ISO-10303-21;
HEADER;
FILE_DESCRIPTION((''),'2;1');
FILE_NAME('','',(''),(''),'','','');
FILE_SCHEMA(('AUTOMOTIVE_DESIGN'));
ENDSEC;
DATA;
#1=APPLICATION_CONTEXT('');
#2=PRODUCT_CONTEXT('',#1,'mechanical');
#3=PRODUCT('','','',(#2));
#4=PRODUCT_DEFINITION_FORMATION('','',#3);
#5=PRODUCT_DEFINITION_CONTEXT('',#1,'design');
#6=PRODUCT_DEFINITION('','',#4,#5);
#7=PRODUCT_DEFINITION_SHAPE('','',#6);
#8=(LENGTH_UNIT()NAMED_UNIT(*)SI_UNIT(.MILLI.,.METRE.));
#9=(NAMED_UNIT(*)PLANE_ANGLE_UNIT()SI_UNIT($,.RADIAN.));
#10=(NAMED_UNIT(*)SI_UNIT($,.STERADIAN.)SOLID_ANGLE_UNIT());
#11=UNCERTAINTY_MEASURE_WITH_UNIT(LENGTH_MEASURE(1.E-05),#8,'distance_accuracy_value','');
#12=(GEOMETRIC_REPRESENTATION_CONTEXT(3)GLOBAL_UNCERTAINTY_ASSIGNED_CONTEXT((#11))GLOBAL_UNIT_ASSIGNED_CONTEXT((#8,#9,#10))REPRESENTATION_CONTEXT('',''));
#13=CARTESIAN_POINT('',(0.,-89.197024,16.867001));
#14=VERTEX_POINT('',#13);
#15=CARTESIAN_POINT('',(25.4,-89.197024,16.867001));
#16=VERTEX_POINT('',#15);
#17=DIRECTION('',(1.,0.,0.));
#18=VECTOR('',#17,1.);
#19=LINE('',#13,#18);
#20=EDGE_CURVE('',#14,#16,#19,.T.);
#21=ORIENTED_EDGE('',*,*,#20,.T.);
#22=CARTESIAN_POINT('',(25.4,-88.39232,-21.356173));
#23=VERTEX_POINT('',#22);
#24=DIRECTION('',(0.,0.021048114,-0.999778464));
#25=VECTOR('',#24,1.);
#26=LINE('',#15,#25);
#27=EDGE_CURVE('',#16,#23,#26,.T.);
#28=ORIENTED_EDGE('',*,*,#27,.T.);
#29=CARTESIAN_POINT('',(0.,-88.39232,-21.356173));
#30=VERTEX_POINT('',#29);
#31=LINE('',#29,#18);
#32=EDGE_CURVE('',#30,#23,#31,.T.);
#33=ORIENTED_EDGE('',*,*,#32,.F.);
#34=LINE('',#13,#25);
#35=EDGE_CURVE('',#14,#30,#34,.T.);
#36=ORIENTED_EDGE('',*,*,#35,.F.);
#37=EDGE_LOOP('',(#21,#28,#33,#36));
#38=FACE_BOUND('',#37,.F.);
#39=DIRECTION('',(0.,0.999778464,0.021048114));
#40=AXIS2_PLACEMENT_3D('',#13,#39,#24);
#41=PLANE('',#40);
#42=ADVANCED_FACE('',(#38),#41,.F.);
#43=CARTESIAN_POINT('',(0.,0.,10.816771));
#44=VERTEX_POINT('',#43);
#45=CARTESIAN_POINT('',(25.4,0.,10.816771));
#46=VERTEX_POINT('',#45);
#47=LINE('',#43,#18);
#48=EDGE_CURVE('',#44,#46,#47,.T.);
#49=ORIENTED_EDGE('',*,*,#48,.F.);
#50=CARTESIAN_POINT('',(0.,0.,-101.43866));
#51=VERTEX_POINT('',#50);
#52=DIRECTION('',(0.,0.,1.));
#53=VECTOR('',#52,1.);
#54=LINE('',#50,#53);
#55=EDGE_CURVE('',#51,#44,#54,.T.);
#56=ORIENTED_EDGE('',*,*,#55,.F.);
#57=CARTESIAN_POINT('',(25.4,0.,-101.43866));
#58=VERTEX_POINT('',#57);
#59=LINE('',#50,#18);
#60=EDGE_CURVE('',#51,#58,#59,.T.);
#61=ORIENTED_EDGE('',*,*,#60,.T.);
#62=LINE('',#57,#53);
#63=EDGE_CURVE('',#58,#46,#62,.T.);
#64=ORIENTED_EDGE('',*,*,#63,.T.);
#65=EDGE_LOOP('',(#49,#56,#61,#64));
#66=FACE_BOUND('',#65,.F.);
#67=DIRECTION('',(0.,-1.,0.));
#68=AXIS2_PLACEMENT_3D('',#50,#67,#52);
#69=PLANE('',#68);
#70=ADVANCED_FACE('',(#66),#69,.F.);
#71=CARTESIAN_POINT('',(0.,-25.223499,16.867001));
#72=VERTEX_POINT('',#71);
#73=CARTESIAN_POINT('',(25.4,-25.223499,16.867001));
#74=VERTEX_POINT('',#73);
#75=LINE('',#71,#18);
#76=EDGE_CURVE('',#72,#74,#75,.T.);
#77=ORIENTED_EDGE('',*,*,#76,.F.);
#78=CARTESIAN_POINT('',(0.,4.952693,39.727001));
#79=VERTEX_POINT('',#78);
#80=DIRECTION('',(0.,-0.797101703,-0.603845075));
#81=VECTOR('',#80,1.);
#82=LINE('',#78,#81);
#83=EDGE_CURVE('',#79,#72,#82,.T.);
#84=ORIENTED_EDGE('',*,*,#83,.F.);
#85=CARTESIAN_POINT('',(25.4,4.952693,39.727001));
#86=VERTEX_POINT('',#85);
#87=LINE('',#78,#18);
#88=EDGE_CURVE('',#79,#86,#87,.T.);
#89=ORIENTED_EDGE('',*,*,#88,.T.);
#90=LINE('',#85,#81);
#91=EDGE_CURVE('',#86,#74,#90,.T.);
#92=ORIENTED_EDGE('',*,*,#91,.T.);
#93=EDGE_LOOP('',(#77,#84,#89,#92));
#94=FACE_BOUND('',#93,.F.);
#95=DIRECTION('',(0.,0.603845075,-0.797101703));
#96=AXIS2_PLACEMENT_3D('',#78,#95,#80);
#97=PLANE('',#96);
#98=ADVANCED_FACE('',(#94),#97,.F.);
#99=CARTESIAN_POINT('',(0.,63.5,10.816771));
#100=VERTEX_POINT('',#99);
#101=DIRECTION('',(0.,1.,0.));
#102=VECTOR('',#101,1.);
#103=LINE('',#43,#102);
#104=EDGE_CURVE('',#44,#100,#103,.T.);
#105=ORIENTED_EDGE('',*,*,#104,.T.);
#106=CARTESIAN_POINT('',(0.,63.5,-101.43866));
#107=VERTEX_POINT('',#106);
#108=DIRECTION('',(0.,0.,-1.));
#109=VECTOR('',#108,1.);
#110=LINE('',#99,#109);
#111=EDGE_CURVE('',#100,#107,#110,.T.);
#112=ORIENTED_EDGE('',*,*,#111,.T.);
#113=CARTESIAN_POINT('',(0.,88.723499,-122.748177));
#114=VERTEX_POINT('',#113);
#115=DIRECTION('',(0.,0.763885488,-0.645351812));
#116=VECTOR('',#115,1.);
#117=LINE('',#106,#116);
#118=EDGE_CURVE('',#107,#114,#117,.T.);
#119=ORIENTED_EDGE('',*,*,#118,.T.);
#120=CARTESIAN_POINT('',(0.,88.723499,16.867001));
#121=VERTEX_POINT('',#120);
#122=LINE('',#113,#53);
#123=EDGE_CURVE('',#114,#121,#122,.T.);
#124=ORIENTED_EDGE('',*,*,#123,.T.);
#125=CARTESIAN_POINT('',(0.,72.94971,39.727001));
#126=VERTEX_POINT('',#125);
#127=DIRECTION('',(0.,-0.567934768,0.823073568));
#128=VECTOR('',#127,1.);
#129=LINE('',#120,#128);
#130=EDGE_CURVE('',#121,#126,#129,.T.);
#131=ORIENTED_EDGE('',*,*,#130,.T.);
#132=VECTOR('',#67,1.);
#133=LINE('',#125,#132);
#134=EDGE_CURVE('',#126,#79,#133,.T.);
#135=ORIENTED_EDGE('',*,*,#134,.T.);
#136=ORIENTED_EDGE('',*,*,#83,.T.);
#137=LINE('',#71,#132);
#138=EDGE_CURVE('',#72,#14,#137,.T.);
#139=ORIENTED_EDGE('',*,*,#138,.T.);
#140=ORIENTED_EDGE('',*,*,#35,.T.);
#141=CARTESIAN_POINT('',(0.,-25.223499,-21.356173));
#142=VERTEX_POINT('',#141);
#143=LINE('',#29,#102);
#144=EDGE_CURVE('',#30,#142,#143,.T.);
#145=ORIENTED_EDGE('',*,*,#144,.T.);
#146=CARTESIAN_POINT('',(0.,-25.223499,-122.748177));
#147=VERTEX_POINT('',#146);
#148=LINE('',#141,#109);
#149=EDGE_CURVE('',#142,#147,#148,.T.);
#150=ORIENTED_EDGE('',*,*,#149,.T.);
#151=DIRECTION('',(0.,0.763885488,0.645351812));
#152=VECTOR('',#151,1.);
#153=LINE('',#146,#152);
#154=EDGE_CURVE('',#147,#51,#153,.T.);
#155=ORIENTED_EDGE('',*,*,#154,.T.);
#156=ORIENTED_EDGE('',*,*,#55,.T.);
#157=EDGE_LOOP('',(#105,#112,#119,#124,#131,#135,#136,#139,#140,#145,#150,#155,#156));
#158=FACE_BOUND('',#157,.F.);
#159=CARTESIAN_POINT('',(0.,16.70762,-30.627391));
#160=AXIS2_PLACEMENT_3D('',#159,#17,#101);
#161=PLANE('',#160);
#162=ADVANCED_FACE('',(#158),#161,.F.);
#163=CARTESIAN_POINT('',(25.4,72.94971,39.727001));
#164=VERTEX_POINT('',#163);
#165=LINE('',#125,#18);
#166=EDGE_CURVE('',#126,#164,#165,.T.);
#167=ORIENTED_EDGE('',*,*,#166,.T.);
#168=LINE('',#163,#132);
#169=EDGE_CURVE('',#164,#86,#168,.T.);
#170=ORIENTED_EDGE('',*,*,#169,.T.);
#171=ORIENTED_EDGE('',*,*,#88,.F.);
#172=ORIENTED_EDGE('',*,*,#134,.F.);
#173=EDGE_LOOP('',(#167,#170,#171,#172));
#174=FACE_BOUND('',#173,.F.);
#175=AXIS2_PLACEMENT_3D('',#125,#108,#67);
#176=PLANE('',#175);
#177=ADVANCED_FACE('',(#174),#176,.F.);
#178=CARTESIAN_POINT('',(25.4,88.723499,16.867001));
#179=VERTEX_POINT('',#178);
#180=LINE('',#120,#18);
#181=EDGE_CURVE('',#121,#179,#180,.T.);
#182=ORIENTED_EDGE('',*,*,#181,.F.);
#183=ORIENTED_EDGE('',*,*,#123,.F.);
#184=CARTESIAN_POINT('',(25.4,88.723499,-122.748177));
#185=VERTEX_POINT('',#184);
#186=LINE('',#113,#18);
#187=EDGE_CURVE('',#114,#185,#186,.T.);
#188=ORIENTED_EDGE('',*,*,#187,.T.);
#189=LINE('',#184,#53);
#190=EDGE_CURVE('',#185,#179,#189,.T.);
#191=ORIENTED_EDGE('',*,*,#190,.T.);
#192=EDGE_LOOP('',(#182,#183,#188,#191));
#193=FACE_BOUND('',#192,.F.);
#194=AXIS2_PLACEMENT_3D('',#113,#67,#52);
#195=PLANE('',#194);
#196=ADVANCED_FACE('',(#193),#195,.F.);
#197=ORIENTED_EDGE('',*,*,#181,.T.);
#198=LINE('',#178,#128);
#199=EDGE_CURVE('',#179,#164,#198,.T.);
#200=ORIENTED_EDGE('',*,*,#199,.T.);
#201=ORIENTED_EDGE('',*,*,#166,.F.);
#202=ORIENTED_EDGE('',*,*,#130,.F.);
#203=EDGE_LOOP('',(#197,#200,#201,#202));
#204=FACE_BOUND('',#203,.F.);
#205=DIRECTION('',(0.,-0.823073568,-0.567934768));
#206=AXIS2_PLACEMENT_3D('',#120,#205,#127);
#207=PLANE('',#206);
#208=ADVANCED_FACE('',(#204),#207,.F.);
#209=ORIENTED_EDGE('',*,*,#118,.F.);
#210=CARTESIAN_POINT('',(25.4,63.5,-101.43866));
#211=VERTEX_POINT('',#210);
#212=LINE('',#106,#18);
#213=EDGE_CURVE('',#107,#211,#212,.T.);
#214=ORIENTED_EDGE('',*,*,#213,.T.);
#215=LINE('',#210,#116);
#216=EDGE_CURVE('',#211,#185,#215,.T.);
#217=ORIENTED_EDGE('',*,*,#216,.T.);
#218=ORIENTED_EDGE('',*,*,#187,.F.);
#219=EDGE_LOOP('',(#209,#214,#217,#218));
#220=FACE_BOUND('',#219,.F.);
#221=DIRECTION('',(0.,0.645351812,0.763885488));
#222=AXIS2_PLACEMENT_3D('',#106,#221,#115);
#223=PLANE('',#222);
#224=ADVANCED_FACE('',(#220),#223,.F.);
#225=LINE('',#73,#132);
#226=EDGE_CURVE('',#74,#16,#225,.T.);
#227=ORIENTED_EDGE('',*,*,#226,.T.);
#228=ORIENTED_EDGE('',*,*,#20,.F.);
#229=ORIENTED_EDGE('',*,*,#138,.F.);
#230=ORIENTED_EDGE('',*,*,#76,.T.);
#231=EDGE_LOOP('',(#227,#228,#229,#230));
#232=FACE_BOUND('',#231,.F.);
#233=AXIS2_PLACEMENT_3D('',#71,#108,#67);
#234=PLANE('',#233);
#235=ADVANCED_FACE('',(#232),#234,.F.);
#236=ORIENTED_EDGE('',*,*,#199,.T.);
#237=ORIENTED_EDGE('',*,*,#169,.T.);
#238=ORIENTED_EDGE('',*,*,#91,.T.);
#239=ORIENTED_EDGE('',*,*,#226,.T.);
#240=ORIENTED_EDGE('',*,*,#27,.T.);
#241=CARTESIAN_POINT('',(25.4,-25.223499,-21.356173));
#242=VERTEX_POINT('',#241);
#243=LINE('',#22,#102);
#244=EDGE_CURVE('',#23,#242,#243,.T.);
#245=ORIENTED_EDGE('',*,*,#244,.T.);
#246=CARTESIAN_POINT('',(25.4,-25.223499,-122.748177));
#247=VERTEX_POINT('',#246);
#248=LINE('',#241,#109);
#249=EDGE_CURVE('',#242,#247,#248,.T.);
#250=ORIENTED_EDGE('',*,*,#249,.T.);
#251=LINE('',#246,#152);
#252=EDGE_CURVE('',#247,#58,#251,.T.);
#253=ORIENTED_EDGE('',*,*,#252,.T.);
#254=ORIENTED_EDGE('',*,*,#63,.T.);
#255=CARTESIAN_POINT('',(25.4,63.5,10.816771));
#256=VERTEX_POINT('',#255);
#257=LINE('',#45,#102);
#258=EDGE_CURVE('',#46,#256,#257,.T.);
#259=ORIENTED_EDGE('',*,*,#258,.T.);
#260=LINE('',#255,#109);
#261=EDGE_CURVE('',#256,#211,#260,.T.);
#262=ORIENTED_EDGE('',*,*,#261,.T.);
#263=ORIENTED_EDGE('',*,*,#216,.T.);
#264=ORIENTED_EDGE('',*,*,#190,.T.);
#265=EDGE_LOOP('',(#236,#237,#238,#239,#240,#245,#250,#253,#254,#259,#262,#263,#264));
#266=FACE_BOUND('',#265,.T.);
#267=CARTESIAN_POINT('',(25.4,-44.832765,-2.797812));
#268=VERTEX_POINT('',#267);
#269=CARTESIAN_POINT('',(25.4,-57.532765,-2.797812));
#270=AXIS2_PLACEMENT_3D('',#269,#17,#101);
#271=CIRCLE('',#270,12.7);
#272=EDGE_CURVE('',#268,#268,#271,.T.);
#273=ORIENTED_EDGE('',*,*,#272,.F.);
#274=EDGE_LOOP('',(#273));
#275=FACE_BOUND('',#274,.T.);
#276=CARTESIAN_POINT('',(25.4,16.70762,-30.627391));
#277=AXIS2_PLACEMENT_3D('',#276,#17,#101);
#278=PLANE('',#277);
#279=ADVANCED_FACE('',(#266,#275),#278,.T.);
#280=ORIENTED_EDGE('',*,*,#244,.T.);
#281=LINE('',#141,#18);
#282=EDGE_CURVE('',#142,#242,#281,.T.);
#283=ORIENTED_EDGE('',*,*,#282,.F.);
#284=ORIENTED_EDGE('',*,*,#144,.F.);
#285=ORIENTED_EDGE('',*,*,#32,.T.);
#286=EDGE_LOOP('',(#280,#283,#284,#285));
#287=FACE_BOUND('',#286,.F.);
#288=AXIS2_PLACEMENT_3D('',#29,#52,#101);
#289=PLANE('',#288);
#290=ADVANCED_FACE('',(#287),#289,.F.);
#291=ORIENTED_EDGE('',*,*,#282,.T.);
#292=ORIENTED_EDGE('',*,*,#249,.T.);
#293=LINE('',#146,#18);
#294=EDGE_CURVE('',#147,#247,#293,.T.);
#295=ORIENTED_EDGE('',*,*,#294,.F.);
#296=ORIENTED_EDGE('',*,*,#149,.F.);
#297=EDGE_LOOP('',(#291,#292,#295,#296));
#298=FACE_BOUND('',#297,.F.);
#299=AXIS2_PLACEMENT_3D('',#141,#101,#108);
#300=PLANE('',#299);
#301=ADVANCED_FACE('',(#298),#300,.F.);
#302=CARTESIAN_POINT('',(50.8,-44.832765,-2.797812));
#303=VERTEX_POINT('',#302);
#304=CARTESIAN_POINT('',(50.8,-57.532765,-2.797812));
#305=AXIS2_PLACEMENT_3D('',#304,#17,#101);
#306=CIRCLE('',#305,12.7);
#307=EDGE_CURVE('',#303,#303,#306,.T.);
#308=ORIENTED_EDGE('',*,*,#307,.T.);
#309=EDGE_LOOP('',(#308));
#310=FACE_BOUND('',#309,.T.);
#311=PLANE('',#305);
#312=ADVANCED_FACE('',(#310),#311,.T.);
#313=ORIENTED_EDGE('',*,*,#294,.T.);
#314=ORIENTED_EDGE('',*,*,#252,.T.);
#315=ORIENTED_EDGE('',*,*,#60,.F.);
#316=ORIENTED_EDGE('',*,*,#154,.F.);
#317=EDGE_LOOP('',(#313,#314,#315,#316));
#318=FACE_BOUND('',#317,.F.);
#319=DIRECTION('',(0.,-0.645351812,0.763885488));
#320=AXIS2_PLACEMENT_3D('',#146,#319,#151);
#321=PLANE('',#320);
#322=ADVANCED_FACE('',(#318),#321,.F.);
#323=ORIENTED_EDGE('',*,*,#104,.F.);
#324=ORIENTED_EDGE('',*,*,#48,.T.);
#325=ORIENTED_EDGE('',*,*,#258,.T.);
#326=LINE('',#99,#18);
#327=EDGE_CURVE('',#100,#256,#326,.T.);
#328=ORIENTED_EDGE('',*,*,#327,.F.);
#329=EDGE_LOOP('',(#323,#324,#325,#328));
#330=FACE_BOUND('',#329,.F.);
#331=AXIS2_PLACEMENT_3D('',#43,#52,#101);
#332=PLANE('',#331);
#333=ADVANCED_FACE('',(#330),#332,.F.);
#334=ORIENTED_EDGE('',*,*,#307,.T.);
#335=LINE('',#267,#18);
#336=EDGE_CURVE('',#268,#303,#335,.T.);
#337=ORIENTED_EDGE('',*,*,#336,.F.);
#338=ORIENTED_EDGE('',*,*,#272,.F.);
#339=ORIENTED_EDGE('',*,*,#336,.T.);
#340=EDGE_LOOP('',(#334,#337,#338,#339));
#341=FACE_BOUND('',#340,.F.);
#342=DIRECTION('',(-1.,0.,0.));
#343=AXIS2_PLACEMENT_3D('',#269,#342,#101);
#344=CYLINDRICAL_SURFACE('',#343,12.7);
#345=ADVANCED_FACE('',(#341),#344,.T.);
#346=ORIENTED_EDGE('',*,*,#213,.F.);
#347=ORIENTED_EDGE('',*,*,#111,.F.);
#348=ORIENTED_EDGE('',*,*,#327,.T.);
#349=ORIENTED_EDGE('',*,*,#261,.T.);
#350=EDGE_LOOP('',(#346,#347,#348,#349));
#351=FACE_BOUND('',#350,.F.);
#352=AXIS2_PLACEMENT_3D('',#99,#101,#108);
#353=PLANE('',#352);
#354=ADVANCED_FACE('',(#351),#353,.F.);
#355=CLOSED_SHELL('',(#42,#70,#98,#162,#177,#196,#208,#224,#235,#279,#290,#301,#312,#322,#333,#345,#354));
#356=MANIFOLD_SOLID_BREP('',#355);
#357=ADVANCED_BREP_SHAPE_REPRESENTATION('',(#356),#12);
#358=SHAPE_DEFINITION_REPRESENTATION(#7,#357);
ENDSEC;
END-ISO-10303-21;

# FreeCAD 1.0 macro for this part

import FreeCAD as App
import Part
import Sketcher
from FreeCAD import Vector
Q = App.Units.Quantity

doc = App.newDocument("Part")
body = doc.addObject("PartDesign::Body", "Body")

sketch1 = body.newObject("Sketcher::SketchObject", "Sketch")
sketch1.AttachmentSupport = (doc.getObject("YZ_Plane"), [""])
sketch1.MapMode = "FlatFace"
sketch1.addGeometry(Part.LineSegment(Vector(-25, 17, 0), Vector(-89, 17, 0)), False)
sketch1.addGeometry(Part.LineSegment(Vector(-89, 17, 0), Vector(-88, -21, 0)), False)
sketch1.addGeometry(Part.LineSegment(Vector(-88, -21, 0), Vector(-25, -21, 0)), False)
sketch1.addGeometry(Part.LineSegment(Vector(-25, -21, 0), Vector(-25, -123, 0)), False)
sketch1.addGeometry(Part.LineSegment(Vector(-25, -123, 0), Vector(0, -101, 0)), False)
sketch1.addGeometry(Part.LineSegment(Vector(0, -101, 0), Vector(0, 11, 0)), False)
sketch1.addGeometry(Part.LineSegment(Vector(0, 11, 0), Vector(64, 11, 0)), False)
sketch1.addGeometry(Part.LineSegment(Vector(64, 11, 0), Vector(64, -101, 0)), False)
sketch1.addGeometry(Part.LineSegment(Vector(64, -101, 0), Vector(89, -123, 0)), False)
sketch1.addGeometry(Part.LineSegment(Vector(89, -123, 0), Vector(89, 17, 0)), False)
sketch1.addGeometry(Part.LineSegment(Vector(89, 17, 0), Vector(73, 40, 0)), False)
sketch1.addGeometry(Part.LineSegment(Vector(73, 40, 0), Vector(5, 40, 0)), False)
sketch1.addGeometry(Part.LineSegment(Vector(5, 40, 0), Vector(-25, 17, 0)), False)
sketch1.addConstraint(Sketcher.Constraint("Coincident", 0, 2, 1, 1))
sketch1.addConstraint(Sketcher.Constraint("Coincident", 1, 2, 2, 1))
sketch1.addConstraint(Sketcher.Constraint("Coincident", 2, 2, 3, 1))
sketch1.addConstraint(Sketcher.Constraint("Coincident", 3, 2, 4, 1))
sketch1.addConstraint(Sketcher.Constraint("Coincident", 4, 2, 5, 1))
sketch1.addConstraint(Sketcher.Constraint("Coincident", 5, 2, 6, 1))
sketch1.addConstraint(Sketcher.Constraint("Coincident", 6, 2, 7, 1))
sketch1.addConstraint(Sketcher.Constraint("Coincident", 7, 2, 8, 1))
sketch1.addConstraint(Sketcher.Constraint("Coincident", 8, 2, 9, 1))
sketch1.addConstraint(Sketcher.Constraint("Coincident", 9, 2, 10, 1))
sketch1.addConstraint(Sketcher.Constraint("Coincident", 10, 2, 11, 1))
sketch1.addConstraint(Sketcher.Constraint("Coincident", 11, 2, 12, 1))
sketch1.addConstraint(Sketcher.Constraint("Coincident", 12, 2, 0, 1))
sketch1.addConstraint(Sketcher.Constraint("Horizontal", 0))
sketch1.addConstraint(Sketcher.Constraint("Horizontal", 2))
sketch1.addConstraint(Sketcher.Constraint("Vertical", 3))
sketch1.addConstraint(Sketcher.Constraint("Vertical", 5))
sketch1.addConstraint(Sketcher.Constraint("Horizontal", 6))
sketch1.addConstraint(Sketcher.Constraint("Vertical", 7))
sketch1.addConstraint(Sketcher.Constraint("Vertical", 9))
sketch1.addConstraint(Sketcher.Constraint("Horizontal", 11))
sketch1.addConstraint(Sketcher.Constraint("PointOnObject", 4, 2, -2))
sketch1.addConstraint(Sketcher.Constraint("Horizontal", 4, 2, 7, 2))
sketch1.addConstraint(Sketcher.Constraint("Horizontal", 3, 2, 8, 2))
sketch1.addConstraint(Sketcher.Constraint("Horizontal", 0, 2, 9, 2))
sketch1.addConstraint(Sketcher.Constraint("Vertical", 3, 2, 12, 2))
sketch1.addConstraint(Sketcher.Constraint("Equal", 4, 8))
sketch1.addConstraint(Sketcher.Constraint("DistanceX", 6, 1, 6, 2, Q("2.5 in")))
sketch1.addConstraint(Sketcher.Constraint("Distance", 4, Q("1.3 in")))
sketch1.addConstraint(Sketcher.Constraint("DistanceY", 9, 2, 10, 2, Q("0.9 in")))
sketch1.addConstraint(Sketcher.Constraint("DistanceX", 2, 1, 2, 2, 63.168821))
sketch1.addConstraint(Sketcher.Constraint("DistanceY", 5, 1, 5, 2, 112.255431))
sketch1.addConstraint(Sketcher.Constraint("DistanceY", -1, 1, 0, 2, 16.867001))
sketch1.addConstraint(Sketcher.Constraint("DistanceX", 2, 2, -1, 1, 25.223499))
sketch1.addConstraint(Sketcher.Constraint("DistanceX", 0, 2, 0, 1, 63.973525))
sketch1.addConstraint(Sketcher.Constraint("DistanceX", 11, 2, 11, 1, 67.997017))
sketch1.addConstraint(Sketcher.Constraint("DistanceY", 3, 2, 3, 1, 101.392004))
sketch1.addConstraint(Sketcher.Constraint("DistanceY", 9, 1, 9, 2, 139.615178))
sketch1.addConstraint(Sketcher.Constraint("DistanceX", -1, 1, 10, 2, 72.94971))
pad1 = body.newObject("PartDesign::Pad", "Pad")
pad1.Profile = sketch1
pad1.Length = Q("1 in")

sketch2 = body.newObject("Sketcher::SketchObject", "Sketch001")
sketch2.AttachmentSupport = (doc.getObject("YZ_Plane"), [""])
sketch2.MapMode = "FlatFace"
sketch2.AttachmentOffset = App.Placement(Vector(0, 0, 1 * 25.4), App.Rotation())
sketch2.addGeometry(Part.Circle(Vector(-58, -3, 0), Vector(0, 0, 1), 13), False)
sketch2.addConstraint(Sketcher.Constraint("Diameter", 0, Q("1 in")))
sketch2.addConstraint(Sketcher.Constraint("DistanceY", 0, 3, -1, 1, 2.797812))
sketch2.addConstraint(Sketcher.Constraint("DistanceX", 0, 3, -1, 1, 57.532765))
pad2 = body.newObject("PartDesign::Pad", "Pad001")
pad2.Profile = sketch2
pad2.Length = Q("1 in")

doc.recompute()
